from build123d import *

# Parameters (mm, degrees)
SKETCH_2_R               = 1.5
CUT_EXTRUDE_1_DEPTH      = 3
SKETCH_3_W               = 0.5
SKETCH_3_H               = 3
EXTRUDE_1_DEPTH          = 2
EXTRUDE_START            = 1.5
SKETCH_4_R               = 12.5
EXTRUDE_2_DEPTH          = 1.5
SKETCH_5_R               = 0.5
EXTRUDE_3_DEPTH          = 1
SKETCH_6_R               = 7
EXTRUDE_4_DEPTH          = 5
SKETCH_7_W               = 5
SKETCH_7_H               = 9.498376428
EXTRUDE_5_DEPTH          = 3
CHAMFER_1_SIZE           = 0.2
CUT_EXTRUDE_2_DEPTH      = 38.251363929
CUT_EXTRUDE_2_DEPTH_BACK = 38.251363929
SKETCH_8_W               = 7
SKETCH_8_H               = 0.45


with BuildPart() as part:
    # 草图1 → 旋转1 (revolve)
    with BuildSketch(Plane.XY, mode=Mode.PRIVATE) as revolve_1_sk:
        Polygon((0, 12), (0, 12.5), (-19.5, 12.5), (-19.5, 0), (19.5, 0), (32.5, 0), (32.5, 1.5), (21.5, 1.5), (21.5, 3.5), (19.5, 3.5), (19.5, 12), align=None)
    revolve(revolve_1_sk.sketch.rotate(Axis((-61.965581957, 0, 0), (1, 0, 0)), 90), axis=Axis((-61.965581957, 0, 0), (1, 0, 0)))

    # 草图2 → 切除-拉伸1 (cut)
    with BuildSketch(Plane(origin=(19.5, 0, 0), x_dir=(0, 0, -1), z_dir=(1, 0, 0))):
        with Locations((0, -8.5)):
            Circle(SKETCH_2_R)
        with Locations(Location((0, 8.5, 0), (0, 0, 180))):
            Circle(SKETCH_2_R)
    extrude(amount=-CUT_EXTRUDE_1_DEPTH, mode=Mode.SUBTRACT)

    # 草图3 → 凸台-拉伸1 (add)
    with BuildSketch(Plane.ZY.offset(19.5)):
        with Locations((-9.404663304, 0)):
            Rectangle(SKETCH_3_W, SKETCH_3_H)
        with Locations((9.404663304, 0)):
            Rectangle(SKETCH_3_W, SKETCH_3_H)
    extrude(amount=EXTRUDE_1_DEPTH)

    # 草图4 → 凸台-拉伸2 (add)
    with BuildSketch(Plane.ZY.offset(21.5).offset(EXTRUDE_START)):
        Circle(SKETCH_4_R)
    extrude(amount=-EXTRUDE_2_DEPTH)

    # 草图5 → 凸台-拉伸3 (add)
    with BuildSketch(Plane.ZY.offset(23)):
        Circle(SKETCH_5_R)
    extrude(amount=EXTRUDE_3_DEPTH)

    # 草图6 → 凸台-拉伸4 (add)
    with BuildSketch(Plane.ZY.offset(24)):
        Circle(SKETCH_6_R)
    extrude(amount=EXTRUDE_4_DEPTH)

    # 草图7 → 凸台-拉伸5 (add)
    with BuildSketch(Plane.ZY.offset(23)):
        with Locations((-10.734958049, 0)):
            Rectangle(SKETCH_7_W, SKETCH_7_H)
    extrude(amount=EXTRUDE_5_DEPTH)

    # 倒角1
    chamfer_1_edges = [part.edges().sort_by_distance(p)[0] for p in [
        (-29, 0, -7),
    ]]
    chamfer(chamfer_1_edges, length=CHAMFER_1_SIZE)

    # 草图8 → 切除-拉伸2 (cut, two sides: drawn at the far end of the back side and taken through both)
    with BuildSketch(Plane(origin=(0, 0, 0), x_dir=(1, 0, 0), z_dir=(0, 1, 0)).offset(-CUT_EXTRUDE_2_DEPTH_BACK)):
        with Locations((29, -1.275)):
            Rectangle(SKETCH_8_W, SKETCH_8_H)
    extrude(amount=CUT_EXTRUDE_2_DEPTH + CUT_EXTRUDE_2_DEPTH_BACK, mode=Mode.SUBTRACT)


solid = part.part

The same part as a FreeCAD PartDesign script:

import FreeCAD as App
import Part
import Sketcher

V = App.Vector
Q = App.Units.Quantity


def edges_at(feature, points):
    """Names of the edges that pass closest to the given points."""
    edges = feature.Shape.Edges
    near = lambda p: min(range(len(edges)), key=lambda i: edges[i].distToShape(Part.Vertex(*p))[0])
    return sorted({f"Edge{near(p) + 1}" for p in points})

doc = App.newDocument("Part")
params = doc.addObject("Spreadsheet::Sheet", "Params")
for row, (alias, value) in enumerate([
    ("sketch1_width", "52 mm"),
    ("sketch1_width2", "11 mm"),
    ("sketch1_width3", "2 mm"),
    ("sketch1_height", "0.5 mm"),
    ("sketch1_height2", "12.5 mm"),
    ("revolution_angle", "360 deg"),
    ("sketch2_diameter", "3 mm"),
    ("pocket1_length", "3 mm"),
    ("sketch3_width", "3 mm"),
    ("sketch3_height", "0.5 mm"),
    ("pad1_length", "2 mm"),
    ("sketch4_diameter", "25 mm"),
    ("pad2_length", "1.5 mm"),
    ("sketch5_diameter", "1 mm"),
    ("pad3_length", "1 mm"),
    ("sketch6_diameter", "14 mm"),
    ("pad4_length", "5 mm"),
    ("sketch7_height", "5 mm"),
    ("pad5_length", "3 mm"),
    ("chamfer_size", "0.2 mm"),
    ("sketch8_width", "7 mm"),
    ("sketch8_height", "0.45 mm"),
], start=1):
    params.set(f"A{row}", alias)
    params.set(f"B{row}", "=" + value)
    params.setAlias(f"B{row}", alias)

body = doc.addObject("PartDesign::Body", "Body")

# Sketch on XY plane
sketch1 = body.newObject("Sketcher::SketchObject", "Sketch")
sketch1.AttachmentSupport = (doc.getObject("XY_Plane"), [""])
sketch1.MapMode = "FlatFace"
sketch1.addGeometry([
    Part.LineSegment(V(0, 12, 0), V(0, 12.5, 0)),  # 0
    Part.LineSegment(V(0, 12.5, 0), V(-19.5, 12.5, 0)),  # 1
    Part.LineSegment(V(-19.5, 12.5, 0), V(-19.5, 0, 0)),  # 2
    Part.LineSegment(V(-19.5, 0, 0), V(32.5, 0, 0)),  # 3
    Part.LineSegment(V(32.5, 0, 0), V(32.5, 1.5, 0)),  # 4
    Part.LineSegment(V(32.5, 1.5, 0), V(21.5, 1.5, 0)),  # 5
    Part.LineSegment(V(21.5, 1.5, 0), V(21.5, 3.5, 0)),  # 6
    Part.LineSegment(V(21.5, 3.5, 0), V(19.5, 3.5, 0)),  # 7
    Part.LineSegment(V(19.5, 3.5, 0), V(19.5, 12, 0)),  # 8
    Part.LineSegment(V(19.5, 12, 0), V(0, 12, 0)),  # 9
], False)
sketch1.addConstraint([
    Sketcher.Constraint("Coincident", 0, 2, 1, 1),
    Sketcher.Constraint("Coincident", 1, 2, 2, 1),
    Sketcher.Constraint("Coincident", 2, 2, 3, 1),
    Sketcher.Constraint("Coincident", 3, 2, 4, 1),
    Sketcher.Constraint("Coincident", 4, 2, 5, 1),
    Sketcher.Constraint("Coincident", 5, 2, 6, 1),
    Sketcher.Constraint("Coincident", 6, 2, 7, 1),
    Sketcher.Constraint("Coincident", 7, 2, 8, 1),
    Sketcher.Constraint("Coincident", 8, 2, 9, 1),
    Sketcher.Constraint("Coincident", 9, 2, 0, 1),
    Sketcher.Constraint("Vertical", 0),
    Sketcher.Constraint("Horizontal", 1),
    Sketcher.Constraint("Vertical", 2),
    Sketcher.Constraint("Horizontal", 3),
    Sketcher.Constraint("Vertical", 4),
    Sketcher.Constraint("Horizontal", 5),
    Sketcher.Constraint("Vertical", 6),
    Sketcher.Constraint("Horizontal", 7),
    Sketcher.Constraint("Vertical", 8),
    Sketcher.Constraint("Horizontal", 9),
    Sketcher.Constraint("PointOnObject", 0, 2, -2),
    Sketcher.Constraint("PointOnObject", 2, 2, -1),
    Sketcher.Constraint("Equal", 1, 9),
    Sketcher.Constraint("Equal", 7, 6),
    Sketcher.Constraint("DistanceX", 3, 1, 3, 2, Q("52 mm")),
    Sketcher.Constraint("DistanceX", 5, 2, 5, 1, Q("11 mm")),
    Sketcher.Constraint("DistanceX", 7, 2, 7, 1, Q("2 mm")),
    Sketcher.Constraint("DistanceY", 0, 1, 0, 2, Q("0.5 mm")),
    Sketcher.Constraint("DistanceY", 2, 2, 2, 1, Q("12.5 mm")),
    Sketcher.Constraint("DistanceY", 4, 1, 4, 2, Q("1.5 mm")),
])
sketch1.setExpression("Constraints[24]", "Params.sketch1_width")
sketch1.setExpression("Constraints[25]", "Params.sketch1_width2")
sketch1.setExpression("Constraints[26]", "Params.sketch1_width3")
sketch1.setExpression("Constraints[27]", "Params.sketch1_height")
sketch1.setExpression("Constraints[28]", "Params.sketch1_height2")
revolution = body.newObject("PartDesign::Revolution", "Revolution")
revolution.Profile = sketch1
revolution.ReferenceAxis = (sketch1, ["H_Axis"])
revolution.setExpression("Angle", "Params.revolution_angle")

# Sketch on YZ plane
sketch2 = body.newObject("Sketcher::SketchObject", "Sketch001")
sketch2.AttachmentSupport = (doc.getObject("YZ_Plane"), [""])
sketch2.MapMode = "FlatFace"
sketch2.AttachmentOffset = App.Placement(V(0, 0, 19.5), App.Rotation())
sketch2.addGeometry([
    Part.Circle(V(-8.5, 0, 0), V(0, 0, 1), 1.5),
    Part.Circle(V(8.5, 0, 0), V(0, 0, 1), 1.5),
], False)
sketch2.addConstraint([
    Sketcher.Constraint("Equal", 0, 1),
    Sketcher.Constraint("Symmetric", 0, 3, 1, 3, -1, 1),
    Sketcher.Constraint("PointOnObject", 0, 3, -1),
    Sketcher.Constraint("Diameter", 0, Q("3 mm")),
    Sketcher.Constraint("DistanceX", 0, 3, 1, 3, Q("17 mm")),
])
sketch2.setExpression("Constraints[3]", "Params.sketch2_diameter")
pocket1 = body.newObject("PartDesign::Pocket", "Pocket")
pocket1.Profile = sketch2
pocket1.setExpression("Length", "Params.pocket1_length")

# Sketch on YZ plane
sketch3 = body.newObject("Sketcher::SketchObject", "Sketch002")
sketch3.AttachmentSupport = (doc.getObject("YZ_Plane"), [""])
sketch3.MapMode = "FlatFace"
sketch3.AttachmentOffset = App.Placement(V(0, 0, -19.5), App.Rotation())
sketch3.addGeometry([
    Part.LineSegment(V(1.5, -9.7, 0), V(-1.5, -9.7, 0)),  # 0
    Part.LineSegment(V(-1.5, -9.7, 0), V(-1.5, -9.2, 0)),  # 1
    Part.LineSegment(V(-1.5, -9.2, 0), V(1.5, -9.2, 0)),  # 2
    Part.LineSegment(V(1.5, -9.2, 0), V(1.5, -9.7, 0)),  # 3
    Part.LineSegment(V(1.5, 9.2, 0), V(-1.5, 9.2, 0)),  # 4
    Part.LineSegment(V(-1.5, 9.2, 0), V(-1.5, 9.7, 0)),  # 5
    Part.LineSegment(V(-1.5, 9.7, 0), V(1.5, 9.7, 0)),  # 6
    Part.LineSegment(V(1.5, 9.7, 0), V(1.5, 9.2, 0)),  # 7
], False)
sketch3.addConstraint([
    Sketcher.Constraint("Coincident", 0, 2, 1, 1),
    Sketcher.Constraint("Coincident", 1, 2, 2, 1),
    Sketcher.Constraint("Coincident", 2, 2, 3, 1),
    Sketcher.Constraint("Coincident", 3, 2, 0, 1),
    Sketcher.Constraint("Coincident", 4, 2, 5, 1),
    Sketcher.Constraint("Coincident", 5, 2, 6, 1),
    Sketcher.Constraint("Coincident", 6, 2, 7, 1),
    Sketcher.Constraint("Coincident", 7, 2, 4, 1),
    Sketcher.Constraint("Horizontal", 0),
    Sketcher.Constraint("Vertical", 1),
    Sketcher.Constraint("Horizontal", 2),
    Sketcher.Constraint("Vertical", 3),
    Sketcher.Constraint("Horizontal", 4),
    Sketcher.Constraint("Vertical", 5),
    Sketcher.Constraint("Horizontal", 6),
    Sketcher.Constraint("Vertical", 7),
    Sketcher.Constraint("Symmetric", 2, 2, 4, 2, -1, 1),
    Sketcher.Constraint("Symmetric", 0, 2, 6, 2, -1, 1),
    Sketcher.Constraint("Vertical", 1, 2, 4, 2),
    Sketcher.Constraint("DistanceX", 0, 2, 0, 1, Q("3 mm")),
    Sketcher.Constraint("DistanceY", 1, 1, 1, 2, Q("0.5 mm")),
    Sketcher.Constraint("DistanceY", 0, 2, -1, 1, Q("9.654663 mm")),
])
sketch3.setExpression("Constraints[19]", "Params.sketch3_width")
sketch3.setExpression("Constraints[20]", "Params.sketch3_height")
pad1 = body.newObject("PartDesign::Pad", "Pad")
pad1.Profile = sketch3
pad1.setExpression("Length", "Params.pad1_length")
pad1.Reversed = True

# Sketch on YZ plane
sketch4 = body.newObject("Sketcher::SketchObject", "Sketch003")
sketch4.AttachmentSupport = (doc.getObject("YZ_Plane"), [""])
sketch4.MapMode = "FlatFace"
sketch4.AttachmentOffset = App.Placement(V(0, 0, -23), App.Rotation())
sketch4.addGeometry(Part.Circle(V(0, 0, 0), V(0, 0, 1), 12), False)
sketch4.addConstraint([
    Sketcher.Constraint("Coincident", 0, 3, -1, 1),
    Sketcher.Constraint("Diameter", 0, Q("25 mm")),
])
sketch4.setExpression("Constraints[1]", "Params.sketch4_diameter")
pad2 = body.newObject("PartDesign::Pad", "Pad001")
pad2.Profile = sketch4
pad2.setExpression("Length", "Params.pad2_length")

# Sketch on YZ plane
sketch5 = body.newObject("Sketcher::SketchObject", "Sketch004")
sketch5.AttachmentSupport = (doc.getObject("YZ_Plane"), [""])
sketch5.MapMode = "FlatFace"
sketch5.AttachmentOffset = App.Placement(V(0, 0, -23), App.Rotation())
sketch5.addGeometry(Part.Circle(V(0, 0, 0), V(0, 0, 1), 0.5), False)
sketch5.addConstraint([
    Sketcher.Constraint("Coincident", 0, 3, -1, 1),
    Sketcher.Constraint("Diameter", 0, Q("1 mm")),
])
sketch5.setExpression("Constraints[1]", "Params.sketch5_diameter")
pad3 = body.newObject("PartDesign::Pad", "Pad002")
pad3.Profile = sketch5
pad3.setExpression("Length", "Params.pad3_length")
pad3.Reversed = True

# Sketch on YZ plane
sketch6 = body.newObject("Sketcher::SketchObject", "Sketch005")
sketch6.AttachmentSupport = (doc.getObject("YZ_Plane"), [""])
sketch6.MapMode = "FlatFace"
sketch6.AttachmentOffset = App.Placement(V(0, 0, -24), App.Rotation())
sketch6.addGeometry(Part.Circle(V(0, 0, 0), V(0, 0, 1), 7), False)
sketch6.addConstraint([
    Sketcher.Constraint("Coincident", 0, 3, -1, 1),
    Sketcher.Constraint("Diameter", 0, Q("14 mm")),
])
sketch6.setExpression("Constraints[1]", "Params.sketch6_diameter")
pad4 = body.newObject("PartDesign::Pad", "Pad003")
pad4.Profile = sketch6
pad4.setExpression("Length", "Params.pad4_length")
pad4.Reversed = True

# Sketch on YZ plane
sketch7 = body.newObject("Sketcher::SketchObject", "Sketch006")
sketch7.AttachmentSupport = (doc.getObject("YZ_Plane"), [""])
sketch7.MapMode = "FlatFace"
sketch7.AttachmentOffset = App.Placement(V(0, 0, -23), App.Rotation())
sketch7.addGeometry([
    Part.LineSegment(V(5, -13, 0), V(-5, -13, 0)),
    Part.LineSegment(V(-5, -13, 0), V(-5, -8, 0)),
    Part.LineSegment(V(-5, -8, 0), V(5, -8, 0)),
    Part.LineSegment(V(5, -8, 0), V(5, -13, 0)),
], False)
sketch7.addConstraint([
    Sketcher.Constraint("Coincident", 0, 2, 1, 1),
    Sketcher.Constraint("Coincident", 1, 2, 2, 1),
    Sketcher.Constraint("Coincident", 2, 2, 3, 1),
    Sketcher.Constraint("Coincident", 3, 2, 0, 1),
    Sketcher.Constraint("Horizontal", 0),
    Sketcher.Constraint("Vertical", 1),
    Sketcher.Constraint("Horizontal", 2),
    Sketcher.Constraint("Vertical", 3),
    Sketcher.Constraint("DistanceY", 1, 1, 1, 2, Q("5 mm")),
    Sketcher.Constraint("DistanceX", 0, 2, 0, 1, Q("9.498376 mm")),
    Sketcher.Constraint("DistanceX", 0, 2, -1, 1, Q("4.749188 mm")),
    Sketcher.Constraint("DistanceY", 0, 2, -1, 1, Q("13.234958 mm")),
])
sketch7.setExpression("Constraints[8]", "Params.sketch7_height")
pad5 = body.newObject("PartDesign::Pad", "Pad004")
pad5.Profile = sketch7
pad5.setExpression("Length", "Params.pad5_length")
pad5.Reversed = True
doc.recompute()

chamfer = body.newObject("PartDesign::Chamfer", "Chamfer")
chamfer.Base = (pad5, edges_at(pad5, [(-29, 0, -7)]))
chamfer.setExpression("Size", "Params.chamfer_size")

# Sketch on XZ plane
sketch8 = body.newObject("Sketcher::SketchObject", "Sketch007")
sketch8.AttachmentSupport = (doc.getObject("XZ_Plane"), [""])
sketch8.MapMode = "FlatFace"
sketch8.addGeometry([
    Part.LineSegment(V(25.5, 1.05, 0), V(25.5, 1.5, 0)),
    Part.LineSegment(V(25.5, 1.5, 0), V(32.5, 1.5, 0)),
    Part.LineSegment(V(32.5, 1.5, 0), V(32.5, 1.05, 0)),
    Part.LineSegment(V(32.5, 1.05, 0), V(25.5, 1.05, 0)),
], False)
sketch8.addConstraint([
    Sketcher.Constraint("Coincident", 0, 2, 1, 1),
    Sketcher.Constraint("Coincident", 1, 2, 2, 1),
    Sketcher.Constraint("Coincident", 2, 2, 3, 1),
    Sketcher.Constraint("Coincident", 3, 2, 0, 1),
    Sketcher.Constraint("Vertical", 0),
    Sketcher.Constraint("Horizontal", 1),
    Sketcher.Constraint("Vertical", 2),
    Sketcher.Constraint("Horizontal", 3),
    Sketcher.Constraint("DistanceX", 1, 1, 1, 2, Q("7 mm")),
    Sketcher.Constraint("DistanceY", 0, 1, 0, 2, Q("0.45 mm")),
    Sketcher.Constraint("DistanceX", -1, 1, 0, 2, Q("25.5 mm")),
    Sketcher.Constraint("DistanceY", -1, 1, 0, 2, Q("1.5 mm")),
])
sketch8.setExpression("Constraints[8]", "Params.sketch8_width")
sketch8.setExpression("Constraints[9]", "Params.sketch8_height")
pocket2 = body.newObject("PartDesign::Pocket", "Pocket001")
pocket2.Profile = sketch8
pocket2.Type = "ThroughAll"
pocket2.Midplane = True

doc.recompute()
